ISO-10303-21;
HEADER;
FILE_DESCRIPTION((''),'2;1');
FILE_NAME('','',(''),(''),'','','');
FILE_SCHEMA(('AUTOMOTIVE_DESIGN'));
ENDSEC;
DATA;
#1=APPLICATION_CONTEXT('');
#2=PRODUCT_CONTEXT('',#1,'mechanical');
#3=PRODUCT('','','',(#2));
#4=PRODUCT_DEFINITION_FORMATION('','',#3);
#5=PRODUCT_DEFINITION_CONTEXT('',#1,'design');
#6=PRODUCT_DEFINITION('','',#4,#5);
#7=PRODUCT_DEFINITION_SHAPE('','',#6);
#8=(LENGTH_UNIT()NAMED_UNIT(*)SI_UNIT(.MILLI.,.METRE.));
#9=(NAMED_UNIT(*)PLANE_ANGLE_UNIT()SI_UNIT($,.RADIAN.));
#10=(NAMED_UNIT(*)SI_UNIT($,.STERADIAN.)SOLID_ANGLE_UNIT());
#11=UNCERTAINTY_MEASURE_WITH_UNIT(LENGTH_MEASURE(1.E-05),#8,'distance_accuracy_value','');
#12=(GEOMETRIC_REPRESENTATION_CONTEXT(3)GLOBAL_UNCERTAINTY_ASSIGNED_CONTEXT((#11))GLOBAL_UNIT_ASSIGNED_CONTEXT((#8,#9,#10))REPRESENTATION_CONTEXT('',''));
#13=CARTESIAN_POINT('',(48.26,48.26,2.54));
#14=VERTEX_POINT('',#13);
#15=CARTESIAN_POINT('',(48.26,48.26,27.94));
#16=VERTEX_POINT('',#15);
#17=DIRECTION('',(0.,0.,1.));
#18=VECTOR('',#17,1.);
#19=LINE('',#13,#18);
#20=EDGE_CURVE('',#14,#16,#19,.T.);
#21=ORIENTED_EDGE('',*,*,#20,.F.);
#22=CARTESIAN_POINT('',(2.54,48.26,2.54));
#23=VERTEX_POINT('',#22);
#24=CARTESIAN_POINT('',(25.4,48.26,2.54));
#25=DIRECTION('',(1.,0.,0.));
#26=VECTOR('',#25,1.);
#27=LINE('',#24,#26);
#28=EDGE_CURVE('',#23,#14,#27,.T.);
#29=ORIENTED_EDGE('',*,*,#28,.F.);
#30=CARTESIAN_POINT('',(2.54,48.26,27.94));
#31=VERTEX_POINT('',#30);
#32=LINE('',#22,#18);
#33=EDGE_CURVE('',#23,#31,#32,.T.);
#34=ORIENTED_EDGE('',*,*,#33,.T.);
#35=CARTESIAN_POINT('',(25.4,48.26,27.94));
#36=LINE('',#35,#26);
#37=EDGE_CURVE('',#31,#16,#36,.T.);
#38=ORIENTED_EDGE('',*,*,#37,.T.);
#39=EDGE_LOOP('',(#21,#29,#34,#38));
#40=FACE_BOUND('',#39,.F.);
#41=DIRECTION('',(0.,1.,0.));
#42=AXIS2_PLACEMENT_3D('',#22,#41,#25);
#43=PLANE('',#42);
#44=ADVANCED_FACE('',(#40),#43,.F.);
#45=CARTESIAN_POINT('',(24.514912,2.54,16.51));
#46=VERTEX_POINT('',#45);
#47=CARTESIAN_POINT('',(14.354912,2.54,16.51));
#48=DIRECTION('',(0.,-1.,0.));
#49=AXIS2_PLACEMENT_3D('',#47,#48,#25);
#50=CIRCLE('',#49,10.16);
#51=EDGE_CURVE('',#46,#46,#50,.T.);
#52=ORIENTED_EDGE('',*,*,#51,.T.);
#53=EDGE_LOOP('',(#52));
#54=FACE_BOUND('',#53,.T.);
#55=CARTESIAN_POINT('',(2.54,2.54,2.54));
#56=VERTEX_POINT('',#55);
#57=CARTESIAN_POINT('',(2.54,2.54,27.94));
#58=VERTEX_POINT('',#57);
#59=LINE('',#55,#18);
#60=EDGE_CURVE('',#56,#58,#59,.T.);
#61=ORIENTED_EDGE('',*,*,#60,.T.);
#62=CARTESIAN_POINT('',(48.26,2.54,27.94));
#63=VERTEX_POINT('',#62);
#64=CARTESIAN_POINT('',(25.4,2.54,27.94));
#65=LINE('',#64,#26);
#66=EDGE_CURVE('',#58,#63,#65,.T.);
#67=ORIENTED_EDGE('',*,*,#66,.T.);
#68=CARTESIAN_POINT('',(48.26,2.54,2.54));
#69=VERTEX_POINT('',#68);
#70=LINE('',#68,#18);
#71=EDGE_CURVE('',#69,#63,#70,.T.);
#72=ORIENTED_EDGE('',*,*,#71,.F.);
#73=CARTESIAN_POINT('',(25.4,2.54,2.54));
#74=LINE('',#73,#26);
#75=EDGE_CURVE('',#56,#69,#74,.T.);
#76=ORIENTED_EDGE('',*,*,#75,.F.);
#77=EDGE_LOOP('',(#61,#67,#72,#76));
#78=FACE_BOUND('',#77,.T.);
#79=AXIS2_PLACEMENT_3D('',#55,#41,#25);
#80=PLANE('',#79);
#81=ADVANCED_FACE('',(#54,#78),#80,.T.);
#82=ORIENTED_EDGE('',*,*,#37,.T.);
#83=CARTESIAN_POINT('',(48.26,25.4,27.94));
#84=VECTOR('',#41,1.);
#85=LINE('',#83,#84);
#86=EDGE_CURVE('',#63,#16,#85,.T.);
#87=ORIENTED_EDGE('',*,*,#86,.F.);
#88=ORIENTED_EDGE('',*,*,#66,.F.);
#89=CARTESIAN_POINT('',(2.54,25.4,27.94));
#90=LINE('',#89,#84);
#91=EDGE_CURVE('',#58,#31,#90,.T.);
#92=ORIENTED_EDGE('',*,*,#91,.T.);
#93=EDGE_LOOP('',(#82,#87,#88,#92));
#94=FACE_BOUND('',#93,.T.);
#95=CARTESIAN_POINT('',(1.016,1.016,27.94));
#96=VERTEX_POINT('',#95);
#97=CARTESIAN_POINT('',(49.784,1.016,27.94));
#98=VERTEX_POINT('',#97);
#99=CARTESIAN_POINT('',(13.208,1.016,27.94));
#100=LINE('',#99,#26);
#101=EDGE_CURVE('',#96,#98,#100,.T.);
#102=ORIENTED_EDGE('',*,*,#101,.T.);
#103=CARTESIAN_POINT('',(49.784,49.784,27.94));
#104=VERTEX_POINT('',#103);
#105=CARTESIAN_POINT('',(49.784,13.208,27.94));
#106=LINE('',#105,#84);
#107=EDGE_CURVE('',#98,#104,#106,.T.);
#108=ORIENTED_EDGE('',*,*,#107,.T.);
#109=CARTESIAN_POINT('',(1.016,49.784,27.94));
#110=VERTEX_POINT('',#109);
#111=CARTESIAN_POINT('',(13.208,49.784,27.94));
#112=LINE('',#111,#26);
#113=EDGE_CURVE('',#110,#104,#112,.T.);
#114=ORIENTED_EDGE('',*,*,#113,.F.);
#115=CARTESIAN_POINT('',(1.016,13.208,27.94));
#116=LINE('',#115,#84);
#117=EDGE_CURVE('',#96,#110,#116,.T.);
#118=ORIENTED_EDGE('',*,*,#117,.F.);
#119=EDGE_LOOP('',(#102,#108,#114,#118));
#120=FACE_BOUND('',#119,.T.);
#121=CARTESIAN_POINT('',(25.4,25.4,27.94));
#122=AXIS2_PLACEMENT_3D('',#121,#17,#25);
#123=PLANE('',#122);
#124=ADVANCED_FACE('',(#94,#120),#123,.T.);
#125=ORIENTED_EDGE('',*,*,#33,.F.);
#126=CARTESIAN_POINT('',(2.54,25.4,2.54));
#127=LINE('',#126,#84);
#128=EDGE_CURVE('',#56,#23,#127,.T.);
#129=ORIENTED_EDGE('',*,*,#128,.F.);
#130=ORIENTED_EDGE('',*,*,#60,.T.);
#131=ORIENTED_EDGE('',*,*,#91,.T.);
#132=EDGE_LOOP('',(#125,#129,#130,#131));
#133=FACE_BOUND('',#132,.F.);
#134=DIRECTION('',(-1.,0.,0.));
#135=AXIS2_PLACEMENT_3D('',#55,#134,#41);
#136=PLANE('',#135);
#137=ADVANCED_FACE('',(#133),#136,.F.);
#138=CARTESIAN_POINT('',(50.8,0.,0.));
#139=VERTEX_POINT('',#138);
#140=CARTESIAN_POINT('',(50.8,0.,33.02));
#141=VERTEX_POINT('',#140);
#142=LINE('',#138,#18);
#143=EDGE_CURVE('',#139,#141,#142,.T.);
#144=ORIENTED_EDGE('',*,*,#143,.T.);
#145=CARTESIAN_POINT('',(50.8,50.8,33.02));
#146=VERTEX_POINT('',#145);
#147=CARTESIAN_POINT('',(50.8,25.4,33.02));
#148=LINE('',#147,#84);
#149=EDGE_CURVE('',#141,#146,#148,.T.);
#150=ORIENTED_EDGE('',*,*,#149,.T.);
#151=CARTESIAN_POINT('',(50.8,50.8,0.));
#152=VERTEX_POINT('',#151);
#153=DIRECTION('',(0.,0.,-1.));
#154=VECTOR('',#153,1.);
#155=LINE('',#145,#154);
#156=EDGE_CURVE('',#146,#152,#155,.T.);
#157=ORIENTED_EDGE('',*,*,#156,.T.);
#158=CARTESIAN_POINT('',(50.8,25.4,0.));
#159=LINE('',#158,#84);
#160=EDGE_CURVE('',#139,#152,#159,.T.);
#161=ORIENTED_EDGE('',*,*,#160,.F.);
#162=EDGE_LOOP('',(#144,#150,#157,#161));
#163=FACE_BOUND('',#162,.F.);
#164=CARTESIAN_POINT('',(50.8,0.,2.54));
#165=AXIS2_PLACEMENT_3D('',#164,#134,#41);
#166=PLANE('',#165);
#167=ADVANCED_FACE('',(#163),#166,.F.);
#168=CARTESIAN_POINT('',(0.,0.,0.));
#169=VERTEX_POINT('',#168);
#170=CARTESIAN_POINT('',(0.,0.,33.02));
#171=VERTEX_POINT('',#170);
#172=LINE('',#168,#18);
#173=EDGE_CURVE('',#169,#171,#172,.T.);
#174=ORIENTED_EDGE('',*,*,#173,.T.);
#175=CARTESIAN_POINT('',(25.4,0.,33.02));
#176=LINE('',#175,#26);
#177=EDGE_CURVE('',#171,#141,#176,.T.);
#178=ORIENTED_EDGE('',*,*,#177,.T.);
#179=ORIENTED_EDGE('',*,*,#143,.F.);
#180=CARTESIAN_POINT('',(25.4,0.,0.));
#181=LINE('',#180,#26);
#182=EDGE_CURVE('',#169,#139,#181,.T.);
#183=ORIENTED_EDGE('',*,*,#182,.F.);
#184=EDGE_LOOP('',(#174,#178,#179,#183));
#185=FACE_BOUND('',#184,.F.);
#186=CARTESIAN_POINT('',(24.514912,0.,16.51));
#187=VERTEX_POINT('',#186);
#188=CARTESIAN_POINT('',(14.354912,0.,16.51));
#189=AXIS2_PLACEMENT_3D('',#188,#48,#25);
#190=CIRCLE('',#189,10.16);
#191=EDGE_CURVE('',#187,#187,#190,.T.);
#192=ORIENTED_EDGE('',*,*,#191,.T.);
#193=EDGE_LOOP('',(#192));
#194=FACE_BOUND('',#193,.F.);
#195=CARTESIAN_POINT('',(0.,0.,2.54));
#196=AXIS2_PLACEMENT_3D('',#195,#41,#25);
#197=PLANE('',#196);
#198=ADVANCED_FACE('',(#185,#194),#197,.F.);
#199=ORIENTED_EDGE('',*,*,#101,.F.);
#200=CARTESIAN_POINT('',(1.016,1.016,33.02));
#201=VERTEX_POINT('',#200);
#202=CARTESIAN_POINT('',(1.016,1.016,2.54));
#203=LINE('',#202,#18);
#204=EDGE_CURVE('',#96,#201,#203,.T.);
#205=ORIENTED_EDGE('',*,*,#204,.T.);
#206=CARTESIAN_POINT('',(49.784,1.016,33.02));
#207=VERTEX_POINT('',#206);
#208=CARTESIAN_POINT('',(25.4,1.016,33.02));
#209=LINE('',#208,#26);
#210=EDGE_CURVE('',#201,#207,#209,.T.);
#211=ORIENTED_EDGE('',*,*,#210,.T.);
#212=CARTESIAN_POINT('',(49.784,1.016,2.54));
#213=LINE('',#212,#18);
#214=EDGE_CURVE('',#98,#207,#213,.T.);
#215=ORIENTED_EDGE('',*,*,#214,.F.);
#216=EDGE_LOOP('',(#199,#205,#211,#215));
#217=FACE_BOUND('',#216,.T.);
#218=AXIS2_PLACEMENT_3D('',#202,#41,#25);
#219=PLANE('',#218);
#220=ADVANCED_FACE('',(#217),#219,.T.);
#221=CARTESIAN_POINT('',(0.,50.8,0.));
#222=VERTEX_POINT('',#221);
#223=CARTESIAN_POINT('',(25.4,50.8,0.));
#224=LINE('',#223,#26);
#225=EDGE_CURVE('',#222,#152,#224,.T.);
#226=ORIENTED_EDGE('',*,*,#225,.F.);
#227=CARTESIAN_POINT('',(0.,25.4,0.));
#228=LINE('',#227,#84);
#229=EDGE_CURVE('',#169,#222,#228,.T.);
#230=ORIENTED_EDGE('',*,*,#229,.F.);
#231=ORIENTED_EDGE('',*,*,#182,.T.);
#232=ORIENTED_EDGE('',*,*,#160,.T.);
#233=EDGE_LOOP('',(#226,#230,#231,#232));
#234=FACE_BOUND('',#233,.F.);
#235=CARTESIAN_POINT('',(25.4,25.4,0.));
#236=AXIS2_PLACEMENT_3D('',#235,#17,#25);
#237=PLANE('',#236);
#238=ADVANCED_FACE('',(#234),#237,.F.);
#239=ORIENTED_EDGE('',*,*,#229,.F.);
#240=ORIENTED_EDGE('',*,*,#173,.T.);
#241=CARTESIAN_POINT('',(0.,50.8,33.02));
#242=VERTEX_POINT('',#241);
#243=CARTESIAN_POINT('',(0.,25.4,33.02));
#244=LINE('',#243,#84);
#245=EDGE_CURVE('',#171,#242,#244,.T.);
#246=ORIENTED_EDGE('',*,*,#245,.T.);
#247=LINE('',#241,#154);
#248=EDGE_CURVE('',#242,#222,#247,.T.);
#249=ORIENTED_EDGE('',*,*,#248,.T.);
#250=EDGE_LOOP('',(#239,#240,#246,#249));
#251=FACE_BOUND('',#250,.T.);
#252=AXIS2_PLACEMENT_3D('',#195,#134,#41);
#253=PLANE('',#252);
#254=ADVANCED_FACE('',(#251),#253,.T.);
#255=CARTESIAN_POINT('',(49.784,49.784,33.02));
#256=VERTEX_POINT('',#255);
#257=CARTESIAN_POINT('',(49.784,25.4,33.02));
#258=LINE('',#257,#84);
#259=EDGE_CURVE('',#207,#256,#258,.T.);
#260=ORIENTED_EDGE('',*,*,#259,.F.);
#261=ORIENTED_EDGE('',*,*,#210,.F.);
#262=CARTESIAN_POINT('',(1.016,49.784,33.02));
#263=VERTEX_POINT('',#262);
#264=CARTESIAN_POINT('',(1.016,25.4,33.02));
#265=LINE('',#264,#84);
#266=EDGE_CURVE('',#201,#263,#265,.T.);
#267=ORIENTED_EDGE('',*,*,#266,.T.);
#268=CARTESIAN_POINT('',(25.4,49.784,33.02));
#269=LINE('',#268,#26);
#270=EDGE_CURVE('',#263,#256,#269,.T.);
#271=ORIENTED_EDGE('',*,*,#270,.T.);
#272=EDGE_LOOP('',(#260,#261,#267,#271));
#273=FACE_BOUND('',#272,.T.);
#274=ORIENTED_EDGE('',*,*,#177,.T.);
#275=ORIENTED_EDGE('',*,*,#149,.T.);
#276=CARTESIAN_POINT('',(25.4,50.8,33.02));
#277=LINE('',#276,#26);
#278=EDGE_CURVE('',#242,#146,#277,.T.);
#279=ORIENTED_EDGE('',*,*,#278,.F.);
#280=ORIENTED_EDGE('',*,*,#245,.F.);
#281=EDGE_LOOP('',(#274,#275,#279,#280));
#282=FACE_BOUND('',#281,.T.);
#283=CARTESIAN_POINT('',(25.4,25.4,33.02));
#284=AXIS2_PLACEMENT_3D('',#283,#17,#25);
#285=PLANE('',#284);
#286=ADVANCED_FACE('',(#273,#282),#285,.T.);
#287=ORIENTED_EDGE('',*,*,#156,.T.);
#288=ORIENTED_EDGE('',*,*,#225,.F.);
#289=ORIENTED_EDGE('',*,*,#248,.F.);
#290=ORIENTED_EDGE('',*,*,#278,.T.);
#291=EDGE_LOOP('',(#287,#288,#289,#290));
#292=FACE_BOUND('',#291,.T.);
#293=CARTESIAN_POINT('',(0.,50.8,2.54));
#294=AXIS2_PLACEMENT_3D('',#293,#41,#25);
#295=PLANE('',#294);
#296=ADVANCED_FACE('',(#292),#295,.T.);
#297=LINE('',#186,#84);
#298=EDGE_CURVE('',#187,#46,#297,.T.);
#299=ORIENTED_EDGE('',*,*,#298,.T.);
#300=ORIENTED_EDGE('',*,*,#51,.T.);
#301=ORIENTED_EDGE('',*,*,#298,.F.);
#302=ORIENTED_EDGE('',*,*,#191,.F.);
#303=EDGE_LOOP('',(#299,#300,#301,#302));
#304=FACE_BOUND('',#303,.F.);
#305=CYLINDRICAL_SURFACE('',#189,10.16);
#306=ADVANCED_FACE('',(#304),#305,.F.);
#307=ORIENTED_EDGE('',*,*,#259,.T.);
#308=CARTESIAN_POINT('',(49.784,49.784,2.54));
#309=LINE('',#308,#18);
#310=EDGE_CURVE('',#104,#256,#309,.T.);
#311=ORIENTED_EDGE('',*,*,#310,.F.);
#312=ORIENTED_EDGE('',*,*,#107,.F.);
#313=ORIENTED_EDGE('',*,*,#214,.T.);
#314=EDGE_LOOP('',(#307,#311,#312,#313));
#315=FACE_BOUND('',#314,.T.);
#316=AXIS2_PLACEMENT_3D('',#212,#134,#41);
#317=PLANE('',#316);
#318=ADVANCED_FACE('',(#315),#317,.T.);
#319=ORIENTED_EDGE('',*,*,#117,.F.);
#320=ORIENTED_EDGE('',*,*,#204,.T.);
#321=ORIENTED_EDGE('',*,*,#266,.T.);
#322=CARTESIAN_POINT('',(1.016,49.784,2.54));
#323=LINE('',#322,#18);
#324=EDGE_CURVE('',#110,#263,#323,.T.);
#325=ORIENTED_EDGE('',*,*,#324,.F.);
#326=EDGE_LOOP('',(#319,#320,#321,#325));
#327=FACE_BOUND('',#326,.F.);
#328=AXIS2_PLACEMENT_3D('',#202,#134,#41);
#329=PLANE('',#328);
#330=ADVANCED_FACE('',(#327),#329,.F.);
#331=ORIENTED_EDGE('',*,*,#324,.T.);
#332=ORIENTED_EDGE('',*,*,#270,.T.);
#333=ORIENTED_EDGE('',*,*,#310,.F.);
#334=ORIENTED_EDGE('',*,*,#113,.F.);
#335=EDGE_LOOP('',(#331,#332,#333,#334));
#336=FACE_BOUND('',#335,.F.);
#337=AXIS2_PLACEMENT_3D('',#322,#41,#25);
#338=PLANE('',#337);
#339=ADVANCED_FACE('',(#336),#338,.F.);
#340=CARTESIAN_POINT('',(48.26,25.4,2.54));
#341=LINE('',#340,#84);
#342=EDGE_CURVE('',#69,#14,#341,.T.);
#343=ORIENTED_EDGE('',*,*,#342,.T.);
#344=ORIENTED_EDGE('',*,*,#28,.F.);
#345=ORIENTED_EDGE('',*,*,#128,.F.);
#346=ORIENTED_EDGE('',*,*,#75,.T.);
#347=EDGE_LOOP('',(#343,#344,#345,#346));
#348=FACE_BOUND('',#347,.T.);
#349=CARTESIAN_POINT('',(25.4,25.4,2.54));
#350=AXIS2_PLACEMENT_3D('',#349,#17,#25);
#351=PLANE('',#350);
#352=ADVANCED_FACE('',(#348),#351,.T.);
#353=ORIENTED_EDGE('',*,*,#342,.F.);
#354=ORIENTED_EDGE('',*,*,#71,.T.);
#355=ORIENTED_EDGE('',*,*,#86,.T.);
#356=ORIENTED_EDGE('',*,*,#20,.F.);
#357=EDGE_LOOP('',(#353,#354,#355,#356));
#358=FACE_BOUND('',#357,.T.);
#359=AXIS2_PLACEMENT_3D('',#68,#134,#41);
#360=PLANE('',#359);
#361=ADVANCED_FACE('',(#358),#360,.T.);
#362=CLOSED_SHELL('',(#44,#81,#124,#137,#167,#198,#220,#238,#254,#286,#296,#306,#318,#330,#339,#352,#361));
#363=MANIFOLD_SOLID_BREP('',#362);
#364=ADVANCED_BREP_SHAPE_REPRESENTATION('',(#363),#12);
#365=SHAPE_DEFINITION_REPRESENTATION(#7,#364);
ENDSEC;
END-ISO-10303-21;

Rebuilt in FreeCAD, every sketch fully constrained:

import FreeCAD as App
import Part
import Sketcher
from FreeCAD import Vector
Q = App.Units.Quantity


def add_polygon(sketch, points):
    """Adds a closed chain of lines whose ends are joined by coincident constraints."""
    first, n = sketch.GeometryCount, len(points)
    for a, b in zip(points, points[1:] + points[:1]):
        sketch.addGeometry(Part.LineSegment(App.Vector(*a, 0), App.Vector(*b, 0)), False)
    for i in range(n):
        sketch.addConstraint(Sketcher.Constraint("Coincident", first + i, 2, first + (i + 1) % n, 1))

doc = App.newDocument("Part")
body = doc.addObject("PartDesign::Body", "Body")

# Sketch on XY plane
sketch1 = body.newObject("Sketcher::SketchObject", "Sketch")
sketch1.AttachmentSupport = (doc.getObject("XY_Plane"), [""])
sketch1.MapMode = "FlatFace"
add_polygon(sketch1, [(0, 50.8), (0, 0), (50.8, 0), (50.8, 50.8)])  # lines 0-3
sketch1.addConstraint(Sketcher.Constraint("Vertical", 0))
sketch1.addConstraint(Sketcher.Constraint("Horizontal", 1))
sketch1.addConstraint(Sketcher.Constraint("Vertical", 2))
sketch1.addConstraint(Sketcher.Constraint("Horizontal", 3))
sketch1.addConstraint(Sketcher.Constraint("Coincident", 0, 2, -1, 1))
sketch1.addConstraint(Sketcher.Constraint("Equal", 3, 0))
sketch1.addConstraint(Sketcher.Constraint("DistanceX", 1, 1, 1, 2, Q("2 in")))
pad1 = body.newObject("PartDesign::Pad", "Pad")
pad1.Profile = sketch1
pad1.Length = Q("0.1 in")

# Sketch on XY plane
sketch2 = body.newObject("Sketcher::SketchObject", "Sketch001")
sketch2.AttachmentSupport = (doc.getObject("XY_Plane"), [""])
sketch2.MapMode = "FlatFace"
sketch2.AttachmentOffset = App.Placement(Vector(0, 0, 0.1 * 25.4), App.Rotation())
add_polygon(sketch2, [(0, 50.8), (0, 0), (50.8, 0), (50.8, 50.8)])  # lines 0-3
add_polygon(sketch2, [(49.784, 1.016), (1.016, 1.016), (1.016, 49.784), (49.784, 49.784)])  # lines 4-7
sketch2.addConstraint(Sketcher.Constraint("Vertical", 0))
sketch2.addConstraint(Sketcher.Constraint("Horizontal", 1))
sketch2.addConstraint(Sketcher.Constraint("Vertical", 2))
sketch2.addConstraint(Sketcher.Constraint("Horizontal", 3))
sketch2.addConstraint(Sketcher.Constraint("Horizontal", 4))
sketch2.addConstraint(Sketcher.Constraint("Vertical", 5))
sketch2.addConstraint(Sketcher.Constraint("Horizontal", 6))
sketch2.addConstraint(Sketcher.Constraint("Vertical", 7))
sketch2.addConstraint(Sketcher.Constraint("Coincident", 0, 2, -1, 1))
sketch2.addConstraint(Sketcher.Constraint("Equal", 3, 0))
sketch2.addConstraint(Sketcher.Constraint("Equal", 6, 5))
sketch2.addConstraint(Sketcher.Constraint("DistanceX", 1, 1, 1, 2, Q("2 in")))
sketch2.addConstraint(Sketcher.Constraint("DistanceX", 4, 2, 4, 1, Q("1.92 in")))
sketch2.addConstraint(Sketcher.Constraint("DistanceX", -1, 1, 4, 2, Q("0.04 in")))
sketch2.addConstraint(Sketcher.Constraint("DistanceY", -1, 1, 4, 2, Q("0.04 in")))
pad2 = body.newObject("PartDesign::Pad", "Pad001")
pad2.Profile = sketch2
pad2.Length = Q("1.2 in")

# Sketch on XY plane
sketch3 = body.newObject("Sketcher::SketchObject", "Sketch002")
sketch3.AttachmentSupport = (doc.getObject("XY_Plane"), [""])
sketch3.MapMode = "FlatFace"
sketch3.AttachmentOffset = App.Placement(Vector(0, 0, 0.1 * 25.4), App.Rotation())
add_polygon(sketch3, [(0, 50.8), (0, 0), (50.8, 0), (50.8, 50.8)])  # lines 0-3
add_polygon(sketch3, [(48.26, 2.54), (2.54, 2.54), (2.54, 48.26), (48.26, 48.26)])  # lines 4-7
sketch3.addConstraint(Sketcher.Constraint("Vertical", 0))
sketch3.addConstraint(Sketcher.Constraint("Horizontal", 1))
sketch3.addConstraint(Sketcher.Constraint("Vertical", 2))
sketch3.addConstraint(Sketcher.Constraint("Horizontal", 3))
sketch3.addConstraint(Sketcher.Constraint("Horizontal", 4))
sketch3.addConstraint(Sketcher.Constraint("Vertical", 5))
sketch3.addConstraint(Sketcher.Constraint("Horizontal", 6))
sketch3.addConstraint(Sketcher.Constraint("Vertical", 7))
sketch3.addConstraint(Sketcher.Constraint("Coincident", 0, 2, -1, 1))
sketch3.addConstraint(Sketcher.Constraint("Equal", 3, 0))
sketch3.addConstraint(Sketcher.Constraint("Equal", 6, 5))
sketch3.addConstraint(Sketcher.Constraint("DistanceX", 1, 1, 1, 2, Q("2 in")))
sketch3.addConstraint(Sketcher.Constraint("DistanceX", 4, 2, 4, 1, Q("1.8 in")))
sketch3.addConstraint(Sketcher.Constraint("DistanceX", -1, 1, 4, 2, Q("0.1 in")))
sketch3.addConstraint(Sketcher.Constraint("DistanceY", -1, 1, 4, 2, Q("0.1 in")))
pad3 = body.newObject("PartDesign::Pad", "Pad002")
pad3.Profile = sketch3
pad3.Length = Q("1 in")

# Sketch on XZ plane
sketch4 = body.newObject("Sketcher::SketchObject", "Sketch003")
sketch4.AttachmentSupport = (doc.getObject("XZ_Plane"), [""])
sketch4.MapMode = "FlatFace"
sketch4.addGeometry(Part.Circle(Vector(14.354912, 16.51, 0), Vector(0, 0, 1), 10.16), False)
sketch4.addConstraint(Sketcher.Constraint("Diameter", 0, Q("0.8 in")))
sketch4.addConstraint(Sketcher.Constraint("DistanceY", -1, 1, 0, 3, Q("0.65 in")))
sketch4.addConstraint(Sketcher.Constraint("DistanceX", -1, 1, 0, 3, 14.354912))
pocket1 = body.newObject("PartDesign::Pocket", "Pocket")
pocket1.Profile = sketch4
pocket1.Length = Q("1 in")

doc.recompute()
